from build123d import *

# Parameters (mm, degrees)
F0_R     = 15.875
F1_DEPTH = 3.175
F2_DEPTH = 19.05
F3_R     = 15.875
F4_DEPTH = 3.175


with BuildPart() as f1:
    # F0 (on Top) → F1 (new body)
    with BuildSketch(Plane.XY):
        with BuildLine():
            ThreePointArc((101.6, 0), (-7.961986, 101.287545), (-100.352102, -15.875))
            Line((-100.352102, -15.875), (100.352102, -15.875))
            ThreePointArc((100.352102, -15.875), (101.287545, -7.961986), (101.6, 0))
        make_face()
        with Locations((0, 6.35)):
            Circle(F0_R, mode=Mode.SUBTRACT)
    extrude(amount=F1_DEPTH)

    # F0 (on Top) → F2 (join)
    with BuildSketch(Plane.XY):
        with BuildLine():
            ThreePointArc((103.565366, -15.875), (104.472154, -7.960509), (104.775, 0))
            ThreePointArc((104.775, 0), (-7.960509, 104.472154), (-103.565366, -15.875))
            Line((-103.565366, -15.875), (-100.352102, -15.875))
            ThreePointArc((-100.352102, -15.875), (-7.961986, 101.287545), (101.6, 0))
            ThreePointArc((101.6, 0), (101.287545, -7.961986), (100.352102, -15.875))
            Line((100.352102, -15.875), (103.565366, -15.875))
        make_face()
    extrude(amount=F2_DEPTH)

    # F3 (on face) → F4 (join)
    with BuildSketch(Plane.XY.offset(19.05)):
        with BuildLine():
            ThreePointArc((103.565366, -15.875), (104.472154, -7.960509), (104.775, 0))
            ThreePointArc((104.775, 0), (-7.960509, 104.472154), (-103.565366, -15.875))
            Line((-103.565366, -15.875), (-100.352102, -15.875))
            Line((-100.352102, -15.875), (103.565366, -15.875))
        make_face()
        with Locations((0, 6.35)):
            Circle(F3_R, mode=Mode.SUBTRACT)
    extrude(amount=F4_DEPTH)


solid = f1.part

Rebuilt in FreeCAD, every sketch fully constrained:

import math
import FreeCAD as App
import Part
import Sketcher

V = App.Vector
Q = App.Units.Quantity

doc = App.newDocument("Part")
body = doc.addObject("PartDesign::Body", "Body")

# Sketch on XY plane
sketch1 = body.newObject("Sketcher::SketchObject", "Sketch")
sketch1.AttachmentSupport = (doc.getObject("XY_Plane"), [""])
sketch1.MapMode = "FlatFace"
sketch1.addGeometry(Part.ArcOfCircle(Part.Circle(V(0, 0, 0), V(0, 0, 1), 101.6), math.radians(0), math.radians(188.989299)), False)
sketch1.addGeometry(Part.LineSegment(V(-100.352102, -15.875, 0), V(100.352102, -15.875, 0)), False)
sketch1.addGeometry(Part.ArcOfCircle(Part.Circle(V(-0.000012, 0.000001, 0), V(0, 0, 1), 101.600012), math.radians(-8.989299), math.radians(0)), False)
sketch1.addGeometry(Part.Circle(V(0, 6.35, 0), V(0, 0, 1), 15.875), False)
sketch1.addConstraint(Sketcher.Constraint("Coincident", 0, 2, 1, 1))
sketch1.addConstraint(Sketcher.Constraint("Coincident", 1, 2, 2, 1))
sketch1.addConstraint(Sketcher.Constraint("Tangent", 2, 2, 0, 1))
sketch1.addConstraint(Sketcher.Constraint("Horizontal", 1))
sketch1.addConstraint(Sketcher.Constraint("Coincident", 0, 3, -1, 1))
sketch1.addConstraint(Sketcher.Constraint("PointOnObject", 3, 3, -2))
sketch1.addConstraint(Sketcher.Constraint("PointOnObject", 2, 2, -1))
sketch1.addConstraint(Sketcher.Constraint("Radius", 0, Q("4 in")))
sketch1.addConstraint(Sketcher.Constraint("Diameter", 3, Q("1.25 in")))
sketch1.addConstraint(Sketcher.Constraint("DistanceY", -1, 1, 3, 3, Q("0.25 in")))
sketch1.addConstraint(Sketcher.Constraint("DistanceY", 0, 2, -1, 1, Q("0.625 in")))
sketch1.addConstraint(Sketcher.Constraint("Radius", 2, Q("101.600012 mm")))
pad1 = body.newObject("PartDesign::Pad", "Pad")
pad1.Profile = sketch1
pad1.Length = Q("0.125 in")

# Sketch on XY plane
sketch2 = body.newObject("Sketcher::SketchObject", "Sketch001")
sketch2.AttachmentSupport = (doc.getObject("XY_Plane"), [""])
sketch2.MapMode = "FlatFace"
sketch2.addGeometry(Part.ArcOfCircle(Part.Circle(V(0.000037, -0.000004, 0), V(0, 0, 1), 104.774963), math.radians(-8.714743), math.radians(0.000002)), False)
sketch2.addGeometry(Part.ArcOfCircle(Part.Circle(V(0, 0, 0), V(0, 0, 1), 104.775), math.radians(0), math.radians(188.714742)), False)
sketch2.addGeometry(Part.LineSegment(V(-103.565366, -15.875, 0), V(-100.352102, -15.875, 0)), False)
sketch2.addGeometry(Part.ArcOfCircle(Part.Circle(V(0, 0, 0), V(0, 0, 1), 101.6), math.radians(0), math.radians(188.989299)), False)
sketch2.addGeometry(Part.ArcOfCircle(Part.Circle(V(-0.000012, 0.000001, 0), V(0, 0, 1), 101.600012), math.radians(-8.989299), math.radians(0)), False)
sketch2.addGeometry(Part.LineSegment(V(100.352102, -15.875, 0), V(103.565366, -15.875, 0)), False)
sketch2.addConstraint(Sketcher.Constraint("Coincident", 0, 2, 1, 1))
sketch2.addConstraint(Sketcher.Constraint("Coincident", 1, 2, 2, 1))
sketch2.addConstraint(Sketcher.Constraint("Coincident", 2, 2, 3, 2))
sketch2.addConstraint(Sketcher.Constraint("Coincident", 3, 1, 4, 2))
sketch2.addConstraint(Sketcher.Constraint("Coincident", 4, 1, 5, 1))
sketch2.addConstraint(Sketcher.Constraint("Coincident", 5, 2, 0, 1))
sketch2.addConstraint(Sketcher.Constraint("Horizontal", 2))
sketch2.addConstraint(Sketcher.Constraint("Horizontal", 5))
sketch2.addConstraint(Sketcher.Constraint("Coincident", 1, 3, -1, 1))
sketch2.addConstraint(Sketcher.Constraint("Coincident", 3, 3, -1, 1))
sketch2.addConstraint(Sketcher.Constraint("PointOnObject", 4, 3, -1))
sketch2.addConstraint(Sketcher.Constraint("PointOnObject", 0, 2, -1))
sketch2.addConstraint(Sketcher.Constraint("PointOnObject", 3, 1, -1))
sketch2.addConstraint(Sketcher.Constraint("Radius", 3, Q("4 in")))
sketch2.addConstraint(Sketcher.Constraint("Radius", 1, Q("4.125 in")))
sketch2.addConstraint(Sketcher.Constraint("DistanceY", 1, 2, -1, 1, Q("0.625 in")))
sketch2.addConstraint(Sketcher.Constraint("DistanceY", 4, 1, -1, 1, Q("0.625 in")))
sketch2.addConstraint(Sketcher.Constraint("Radius", 4, Q("101.600012 mm")))
sketch2.addConstraint(Sketcher.Constraint("DistanceY", 1, 2, 0, 3, Q("0.6249998 in")))
sketch2.addConstraint(Sketcher.Constraint("Radius", 0, Q("104.774963 mm")))
pad2 = body.newObject("PartDesign::Pad", "Pad001")
pad2.Profile = sketch2
pad2.Length = Q("0.75 in")

# Sketch on XY plane
sketch3 = body.newObject("Sketcher::SketchObject", "Sketch002")
sketch3.AttachmentSupport = (doc.getObject("XY_Plane"), [""])
sketch3.MapMode = "FlatFace"
sketch3.AttachmentOffset = App.Placement(V(0, 0, 0.75 * 25.4), App.Rotation())
sketch3.addGeometry(Part.ArcOfCircle(Part.Circle(V(0.000037, -0.000004, 0), V(0, 0, 1), 104.774963), math.radians(-8.714743), math.radians(0.000002)), False)
sketch3.addGeometry(Part.ArcOfCircle(Part.Circle(V(0, 0, 0), V(0, 0, 1), 104.775), math.radians(0), math.radians(188.714742)), False)
sketch3.addGeometry(Part.LineSegment(V(-103.565366, -15.875, 0), V(103.565366, -15.875, 0)), False)
sketch3.addGeometry(Part.Circle(V(0, 6.35, 0), V(0, 0, 1), 15.875), False)
sketch3.addConstraint(Sketcher.Constraint("Tangent", 0, 2, 1, 1))
sketch3.addConstraint(Sketcher.Constraint("Coincident", 1, 2, 2, 1))
sketch3.addConstraint(Sketcher.Constraint("Coincident", 2, 2, 0, 1))
sketch3.addConstraint(Sketcher.Constraint("Horizontal", 2))
sketch3.addConstraint(Sketcher.Constraint("Coincident", 1, 3, -1, 1))
sketch3.addConstraint(Sketcher.Constraint("PointOnObject", 3, 3, -2))
sketch3.addConstraint(Sketcher.Constraint("PointOnObject", 0, 2, -1))
sketch3.addConstraint(Sketcher.Constraint("Diameter", 3, Q("1.25 in")))
sketch3.addConstraint(Sketcher.Constraint("Radius", 1, Q("4.125 in")))
sketch3.addConstraint(Sketcher.Constraint("DistanceY", -1, 1, 3, 3, Q("0.25 in")))
sketch3.addConstraint(Sketcher.Constraint("DistanceY", 1, 2, -1, 1, Q("0.625 in")))
sketch3.addConstraint(Sketcher.Constraint("Radius", 0, Q("104.774963 mm")))
pad3 = body.newObject("PartDesign::Pad", "Pad002")
pad3.Profile = sketch3
pad3.Length = Q("0.125 in")

doc.recompute()
